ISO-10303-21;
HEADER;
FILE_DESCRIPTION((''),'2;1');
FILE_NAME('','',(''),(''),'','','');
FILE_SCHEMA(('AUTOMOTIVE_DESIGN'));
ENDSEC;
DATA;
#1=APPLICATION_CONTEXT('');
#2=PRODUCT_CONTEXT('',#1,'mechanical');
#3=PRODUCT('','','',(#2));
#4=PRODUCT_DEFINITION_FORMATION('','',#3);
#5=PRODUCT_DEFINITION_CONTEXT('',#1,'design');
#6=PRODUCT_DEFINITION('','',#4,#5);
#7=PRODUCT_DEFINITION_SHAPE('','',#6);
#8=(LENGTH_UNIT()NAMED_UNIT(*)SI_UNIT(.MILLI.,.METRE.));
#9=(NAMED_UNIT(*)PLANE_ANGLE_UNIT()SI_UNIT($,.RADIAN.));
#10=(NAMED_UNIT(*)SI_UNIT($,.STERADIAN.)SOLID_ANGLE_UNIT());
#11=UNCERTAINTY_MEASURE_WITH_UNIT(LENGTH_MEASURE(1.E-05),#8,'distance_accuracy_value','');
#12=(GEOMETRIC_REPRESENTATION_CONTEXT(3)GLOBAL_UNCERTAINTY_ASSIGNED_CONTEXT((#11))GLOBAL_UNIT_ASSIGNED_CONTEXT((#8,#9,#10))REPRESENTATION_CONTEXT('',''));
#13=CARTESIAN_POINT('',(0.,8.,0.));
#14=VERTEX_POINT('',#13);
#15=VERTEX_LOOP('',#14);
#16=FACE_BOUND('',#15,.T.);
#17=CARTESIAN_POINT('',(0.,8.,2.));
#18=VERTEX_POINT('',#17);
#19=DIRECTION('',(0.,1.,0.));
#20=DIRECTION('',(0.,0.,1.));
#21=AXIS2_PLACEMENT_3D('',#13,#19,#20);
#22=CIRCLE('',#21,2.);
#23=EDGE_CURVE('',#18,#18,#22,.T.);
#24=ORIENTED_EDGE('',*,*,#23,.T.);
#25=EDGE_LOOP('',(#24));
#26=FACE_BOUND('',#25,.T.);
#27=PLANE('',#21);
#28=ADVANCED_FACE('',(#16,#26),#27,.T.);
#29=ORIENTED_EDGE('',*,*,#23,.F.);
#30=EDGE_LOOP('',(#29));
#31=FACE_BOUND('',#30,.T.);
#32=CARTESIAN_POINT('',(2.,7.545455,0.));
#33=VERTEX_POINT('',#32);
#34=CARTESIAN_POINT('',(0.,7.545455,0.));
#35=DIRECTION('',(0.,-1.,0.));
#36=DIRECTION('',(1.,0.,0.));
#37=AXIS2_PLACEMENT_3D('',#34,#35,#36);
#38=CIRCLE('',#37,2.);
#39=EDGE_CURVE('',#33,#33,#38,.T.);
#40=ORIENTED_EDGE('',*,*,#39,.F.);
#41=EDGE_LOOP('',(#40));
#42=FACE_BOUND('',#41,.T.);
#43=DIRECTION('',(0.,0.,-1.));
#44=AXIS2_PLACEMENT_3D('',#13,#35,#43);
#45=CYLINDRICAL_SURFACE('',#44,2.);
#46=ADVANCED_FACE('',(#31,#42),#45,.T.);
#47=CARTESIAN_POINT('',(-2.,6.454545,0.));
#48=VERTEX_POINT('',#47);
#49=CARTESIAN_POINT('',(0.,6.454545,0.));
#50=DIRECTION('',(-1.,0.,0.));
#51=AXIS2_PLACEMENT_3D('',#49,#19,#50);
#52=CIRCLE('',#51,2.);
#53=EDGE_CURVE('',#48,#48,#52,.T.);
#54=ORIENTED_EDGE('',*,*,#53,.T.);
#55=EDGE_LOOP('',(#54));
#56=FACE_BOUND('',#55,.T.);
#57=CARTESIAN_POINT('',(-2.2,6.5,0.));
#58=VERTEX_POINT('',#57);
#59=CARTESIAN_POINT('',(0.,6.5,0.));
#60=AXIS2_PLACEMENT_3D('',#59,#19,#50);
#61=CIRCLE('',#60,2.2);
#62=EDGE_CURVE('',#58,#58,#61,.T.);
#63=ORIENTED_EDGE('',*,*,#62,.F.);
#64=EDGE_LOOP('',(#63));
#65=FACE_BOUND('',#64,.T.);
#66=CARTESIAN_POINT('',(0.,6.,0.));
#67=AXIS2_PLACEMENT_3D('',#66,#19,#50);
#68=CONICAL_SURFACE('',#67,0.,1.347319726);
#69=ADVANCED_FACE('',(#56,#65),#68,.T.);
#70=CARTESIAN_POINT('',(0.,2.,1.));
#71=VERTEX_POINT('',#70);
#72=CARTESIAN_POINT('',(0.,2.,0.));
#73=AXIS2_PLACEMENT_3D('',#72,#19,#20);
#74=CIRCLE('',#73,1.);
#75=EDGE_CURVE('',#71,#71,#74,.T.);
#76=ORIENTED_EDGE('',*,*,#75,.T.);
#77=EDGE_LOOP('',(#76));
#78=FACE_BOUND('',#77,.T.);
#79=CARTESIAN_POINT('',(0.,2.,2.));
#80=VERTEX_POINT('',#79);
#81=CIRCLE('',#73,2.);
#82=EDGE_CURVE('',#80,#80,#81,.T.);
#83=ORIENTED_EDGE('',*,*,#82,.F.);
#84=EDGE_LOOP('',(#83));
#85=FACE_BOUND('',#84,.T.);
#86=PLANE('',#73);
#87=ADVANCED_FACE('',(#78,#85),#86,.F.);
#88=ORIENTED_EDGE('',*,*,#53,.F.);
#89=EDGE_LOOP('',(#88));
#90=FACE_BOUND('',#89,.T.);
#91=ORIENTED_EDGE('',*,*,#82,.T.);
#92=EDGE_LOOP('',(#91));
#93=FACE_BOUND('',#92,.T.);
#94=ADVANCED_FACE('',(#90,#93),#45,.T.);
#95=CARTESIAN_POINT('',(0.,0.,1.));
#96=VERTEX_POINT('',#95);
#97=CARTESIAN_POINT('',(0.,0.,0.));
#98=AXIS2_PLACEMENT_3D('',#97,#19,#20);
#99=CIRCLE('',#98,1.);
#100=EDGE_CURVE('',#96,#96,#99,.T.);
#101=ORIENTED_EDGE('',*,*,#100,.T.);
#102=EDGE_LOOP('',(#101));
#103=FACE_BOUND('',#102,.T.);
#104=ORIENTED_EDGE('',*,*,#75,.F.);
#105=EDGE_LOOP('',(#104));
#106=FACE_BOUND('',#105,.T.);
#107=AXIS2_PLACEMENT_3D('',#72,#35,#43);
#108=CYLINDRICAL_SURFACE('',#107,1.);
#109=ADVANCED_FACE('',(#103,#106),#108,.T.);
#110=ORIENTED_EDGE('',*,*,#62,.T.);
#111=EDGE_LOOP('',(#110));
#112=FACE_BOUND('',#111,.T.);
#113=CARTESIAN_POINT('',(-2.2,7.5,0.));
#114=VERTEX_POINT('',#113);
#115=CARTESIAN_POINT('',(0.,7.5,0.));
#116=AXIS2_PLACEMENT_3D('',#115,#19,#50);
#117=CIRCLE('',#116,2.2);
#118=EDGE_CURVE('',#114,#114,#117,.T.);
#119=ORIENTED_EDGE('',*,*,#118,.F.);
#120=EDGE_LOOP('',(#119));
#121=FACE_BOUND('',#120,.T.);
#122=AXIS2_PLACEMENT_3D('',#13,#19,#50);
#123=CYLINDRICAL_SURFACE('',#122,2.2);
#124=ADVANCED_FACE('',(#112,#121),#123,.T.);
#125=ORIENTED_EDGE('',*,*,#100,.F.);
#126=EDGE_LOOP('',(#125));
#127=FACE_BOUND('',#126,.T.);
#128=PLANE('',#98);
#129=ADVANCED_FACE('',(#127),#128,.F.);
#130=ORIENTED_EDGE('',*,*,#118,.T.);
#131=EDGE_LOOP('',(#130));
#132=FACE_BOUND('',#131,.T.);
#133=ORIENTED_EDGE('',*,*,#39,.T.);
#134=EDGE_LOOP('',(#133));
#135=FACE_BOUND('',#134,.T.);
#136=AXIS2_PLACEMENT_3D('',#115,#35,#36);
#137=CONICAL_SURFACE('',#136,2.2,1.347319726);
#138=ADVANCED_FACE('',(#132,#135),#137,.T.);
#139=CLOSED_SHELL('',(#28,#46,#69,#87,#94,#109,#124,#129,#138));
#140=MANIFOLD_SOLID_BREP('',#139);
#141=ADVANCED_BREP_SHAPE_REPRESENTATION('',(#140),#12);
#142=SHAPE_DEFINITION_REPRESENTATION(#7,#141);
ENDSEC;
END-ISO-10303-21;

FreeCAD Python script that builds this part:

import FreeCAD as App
import Part
import Sketcher
Q = App.Units.Quantity

doc = App.newDocument("Part")
body = doc.addObject("PartDesign::Body", "Body")

sketch1 = body.newObject("Sketcher::SketchObject", "Sketch")
sketch1.AttachmentSupport = (doc.getObject("XZ_Plane"), [""])
sketch1.MapMode = "FlatFace"
sketch1.addGeometry(Part.Circle(App.Vector(0, 0, 0), App.Vector(0, 0, 1), 1), False)
sketch1.addConstraint(Sketcher.Constraint("Coincident", 0, 3, -1, 1))
sketch1.addConstraint(Sketcher.Constraint("Diameter", 0, Q("2 mm")))
pad1 = body.newObject("PartDesign::Pad", "Pad")
pad1.Profile = sketch1
pad1.Length = 2
pad1.Reversed = True

sketch2 = body.newObject("Sketcher::SketchObject", "Sketch001")
sketch2.AttachmentSupport = (doc.getObject("XZ_Plane"), [""])
sketch2.MapMode = "FlatFace"
sketch2.AttachmentOffset = App.Placement(App.Vector(0, 0, -2), App.Rotation())
sketch2.addGeometry(Part.Circle(App.Vector(0, 0, 0), App.Vector(0, 0, 1), 2), False)
sketch2.addConstraint(Sketcher.Constraint("Coincident", 0, 3, -1, 1))
sketch2.addConstraint(Sketcher.Constraint("Diameter", 0, Q("4 mm")))
pad2 = body.newObject("PartDesign::Pad", "Pad001")
pad2.Profile = sketch2
pad2.Length = 6
pad2.Reversed = True

sketch3 = body.newObject("Sketcher::SketchObject", "Sketch002")
sketch3.AttachmentSupport = (doc.getObject("XY_Plane"), [""])
sketch3.MapMode = "FlatFace"
sketch3.addGeometry(Part.LineSegment(App.Vector(0, 8, 0), App.Vector(0, 6, 0)), False)
sketch3.addGeometry(Part.LineSegment(App.Vector(0, 6, 0), App.Vector(2.2, 6.5, 0)), False)
sketch3.addGeometry(Part.LineSegment(App.Vector(2.2, 6.5, 0), App.Vector(2.2, 7.5, 0)), False)
sketch3.addGeometry(Part.LineSegment(App.Vector(2.2, 7.5, 0), App.Vector(0, 8, 0)), False)
sketch3.addConstraint(Sketcher.Constraint("Coincident", 0, 2, 1, 1))
sketch3.addConstraint(Sketcher.Constraint("Coincident", 1, 2, 2, 1))
sketch3.addConstraint(Sketcher.Constraint("Coincident", 2, 2, 3, 1))
sketch3.addConstraint(Sketcher.Constraint("Coincident", 3, 2, 0, 1))
sketch3.addConstraint(Sketcher.Constraint("Vertical", 0))
sketch3.addConstraint(Sketcher.Constraint("Vertical", 2))
sketch3.addConstraint(Sketcher.Constraint("PointOnObject", 0, 2, -2))
sketch3.addConstraint(Sketcher.Constraint("Equal", 1, 3))
sketch3.addConstraint(Sketcher.Constraint("DistanceY", 0, 2, 0, 1, Q("2 mm")))
sketch3.addConstraint(Sketcher.Constraint("DistanceY", 2, 1, 2, 2, Q("1 mm")))
sketch3.addConstraint(Sketcher.Constraint("DistanceY", -1, 1, 0, 2, Q("6 mm")))
sketch3.addConstraint(Sketcher.Constraint("DistanceX", -1, 1, 1, 2, Q("2.2 mm")))
revolution = body.newObject("PartDesign::Revolution", "Revolution")
revolution.Profile = sketch3
revolution.ReferenceAxis = (sketch3, ["V_Axis"])
revolution.Angle = 360

doc.recompute()
